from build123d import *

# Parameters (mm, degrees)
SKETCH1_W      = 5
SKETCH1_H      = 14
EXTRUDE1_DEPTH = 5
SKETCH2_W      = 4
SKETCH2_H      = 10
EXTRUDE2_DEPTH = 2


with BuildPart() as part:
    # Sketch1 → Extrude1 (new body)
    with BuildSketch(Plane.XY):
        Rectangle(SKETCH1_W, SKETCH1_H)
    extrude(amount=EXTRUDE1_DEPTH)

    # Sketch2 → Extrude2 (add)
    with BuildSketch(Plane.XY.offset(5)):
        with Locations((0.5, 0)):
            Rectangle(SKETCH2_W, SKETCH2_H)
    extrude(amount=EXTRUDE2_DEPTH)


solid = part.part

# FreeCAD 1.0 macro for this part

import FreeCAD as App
import Part
import Sketcher
from FreeCAD import Vector
Q = App.Units.Quantity

doc = App.newDocument("Part")
body = doc.addObject("PartDesign::Body", "Body")

sketch1 = body.newObject("Sketcher::SketchObject", "Sketch")
sketch1.AttachmentSupport = (doc.getObject("XY_Plane"), [""])
sketch1.MapMode = "FlatFace"
sketch1.addGeometry([
    Part.LineSegment(Vector(-2, 7, 0), Vector(-2, -7, 0)),
    Part.LineSegment(Vector(-2, -7, 0), Vector(2, -7, 0)),
    Part.LineSegment(Vector(2, -7, 0), Vector(2, 7, 0)),
    Part.LineSegment(Vector(2, 7, 0), Vector(-2, 7, 0)),
], False)
sketch1.addConstraint([
    Sketcher.Constraint("Coincident", 0, 2, 1, 1),
    Sketcher.Constraint("Coincident", 1, 2, 2, 1),
    Sketcher.Constraint("Coincident", 2, 2, 3, 1),
    Sketcher.Constraint("Coincident", 3, 2, 0, 1),
    Sketcher.Constraint("Vertical", 0),
    Sketcher.Constraint("Horizontal", 1),
    Sketcher.Constraint("Vertical", 2),
    Sketcher.Constraint("Horizontal", 3),
    Sketcher.Constraint("Symmetric", 0, 2, 2, 2, -1, 1),
    Sketcher.Constraint("DistanceX", 1, 1, 1, 2, Q("5 mm")),
    Sketcher.Constraint("DistanceY", 0, 2, 0, 1, Q("14 mm")),
])
pad1 = body.newObject("PartDesign::Pad", "Pad")
pad1.Profile = sketch1
pad1.Length = 5

sketch2 = body.newObject("Sketcher::SketchObject", "Sketch001")
sketch2.AttachmentSupport = (doc.getObject("XY_Plane"), [""])
sketch2.MapMode = "FlatFace"
sketch2.AttachmentOffset = App.Placement(Vector(0, 0, 5), App.Rotation())
sketch2.addGeometry([
    Part.LineSegment(Vector(-1.5, 5, 0), Vector(-1.5, -5, 0)),
    Part.LineSegment(Vector(-1.5, -5, 0), Vector(2.5, -5, 0)),
    Part.LineSegment(Vector(2.5, -5, 0), Vector(2.5, 5, 0)),
    Part.LineSegment(Vector(2.5, 5, 0), Vector(-1.5, 5, 0)),
], False)
sketch2.addConstraint([
    Sketcher.Constraint("Coincident", 0, 2, 1, 1),
    Sketcher.Constraint("Coincident", 1, 2, 2, 1),
    Sketcher.Constraint("Coincident", 2, 2, 3, 1),
    Sketcher.Constraint("Coincident", 3, 2, 0, 1),
    Sketcher.Constraint("Vertical", 0),
    Sketcher.Constraint("Horizontal", 1),
    Sketcher.Constraint("Vertical", 2),
    Sketcher.Constraint("Horizontal", 3),
    Sketcher.Constraint("DistanceX", 1, 1, 1, 2, Q("4 mm")),
    Sketcher.Constraint("DistanceY", 0, 2, 0, 1, Q("10 mm")),
    Sketcher.Constraint("DistanceY", 0, 2, -1, 1, Q("5 mm")),
    Sketcher.Constraint("DistanceX", 0, 2, -1, 1, Q("1.5 mm")),
])
pad2 = body.newObject("PartDesign::Pad", "Pad001")
pad2.Profile = sketch2
pad2.Length = 2

doc.recompute()
